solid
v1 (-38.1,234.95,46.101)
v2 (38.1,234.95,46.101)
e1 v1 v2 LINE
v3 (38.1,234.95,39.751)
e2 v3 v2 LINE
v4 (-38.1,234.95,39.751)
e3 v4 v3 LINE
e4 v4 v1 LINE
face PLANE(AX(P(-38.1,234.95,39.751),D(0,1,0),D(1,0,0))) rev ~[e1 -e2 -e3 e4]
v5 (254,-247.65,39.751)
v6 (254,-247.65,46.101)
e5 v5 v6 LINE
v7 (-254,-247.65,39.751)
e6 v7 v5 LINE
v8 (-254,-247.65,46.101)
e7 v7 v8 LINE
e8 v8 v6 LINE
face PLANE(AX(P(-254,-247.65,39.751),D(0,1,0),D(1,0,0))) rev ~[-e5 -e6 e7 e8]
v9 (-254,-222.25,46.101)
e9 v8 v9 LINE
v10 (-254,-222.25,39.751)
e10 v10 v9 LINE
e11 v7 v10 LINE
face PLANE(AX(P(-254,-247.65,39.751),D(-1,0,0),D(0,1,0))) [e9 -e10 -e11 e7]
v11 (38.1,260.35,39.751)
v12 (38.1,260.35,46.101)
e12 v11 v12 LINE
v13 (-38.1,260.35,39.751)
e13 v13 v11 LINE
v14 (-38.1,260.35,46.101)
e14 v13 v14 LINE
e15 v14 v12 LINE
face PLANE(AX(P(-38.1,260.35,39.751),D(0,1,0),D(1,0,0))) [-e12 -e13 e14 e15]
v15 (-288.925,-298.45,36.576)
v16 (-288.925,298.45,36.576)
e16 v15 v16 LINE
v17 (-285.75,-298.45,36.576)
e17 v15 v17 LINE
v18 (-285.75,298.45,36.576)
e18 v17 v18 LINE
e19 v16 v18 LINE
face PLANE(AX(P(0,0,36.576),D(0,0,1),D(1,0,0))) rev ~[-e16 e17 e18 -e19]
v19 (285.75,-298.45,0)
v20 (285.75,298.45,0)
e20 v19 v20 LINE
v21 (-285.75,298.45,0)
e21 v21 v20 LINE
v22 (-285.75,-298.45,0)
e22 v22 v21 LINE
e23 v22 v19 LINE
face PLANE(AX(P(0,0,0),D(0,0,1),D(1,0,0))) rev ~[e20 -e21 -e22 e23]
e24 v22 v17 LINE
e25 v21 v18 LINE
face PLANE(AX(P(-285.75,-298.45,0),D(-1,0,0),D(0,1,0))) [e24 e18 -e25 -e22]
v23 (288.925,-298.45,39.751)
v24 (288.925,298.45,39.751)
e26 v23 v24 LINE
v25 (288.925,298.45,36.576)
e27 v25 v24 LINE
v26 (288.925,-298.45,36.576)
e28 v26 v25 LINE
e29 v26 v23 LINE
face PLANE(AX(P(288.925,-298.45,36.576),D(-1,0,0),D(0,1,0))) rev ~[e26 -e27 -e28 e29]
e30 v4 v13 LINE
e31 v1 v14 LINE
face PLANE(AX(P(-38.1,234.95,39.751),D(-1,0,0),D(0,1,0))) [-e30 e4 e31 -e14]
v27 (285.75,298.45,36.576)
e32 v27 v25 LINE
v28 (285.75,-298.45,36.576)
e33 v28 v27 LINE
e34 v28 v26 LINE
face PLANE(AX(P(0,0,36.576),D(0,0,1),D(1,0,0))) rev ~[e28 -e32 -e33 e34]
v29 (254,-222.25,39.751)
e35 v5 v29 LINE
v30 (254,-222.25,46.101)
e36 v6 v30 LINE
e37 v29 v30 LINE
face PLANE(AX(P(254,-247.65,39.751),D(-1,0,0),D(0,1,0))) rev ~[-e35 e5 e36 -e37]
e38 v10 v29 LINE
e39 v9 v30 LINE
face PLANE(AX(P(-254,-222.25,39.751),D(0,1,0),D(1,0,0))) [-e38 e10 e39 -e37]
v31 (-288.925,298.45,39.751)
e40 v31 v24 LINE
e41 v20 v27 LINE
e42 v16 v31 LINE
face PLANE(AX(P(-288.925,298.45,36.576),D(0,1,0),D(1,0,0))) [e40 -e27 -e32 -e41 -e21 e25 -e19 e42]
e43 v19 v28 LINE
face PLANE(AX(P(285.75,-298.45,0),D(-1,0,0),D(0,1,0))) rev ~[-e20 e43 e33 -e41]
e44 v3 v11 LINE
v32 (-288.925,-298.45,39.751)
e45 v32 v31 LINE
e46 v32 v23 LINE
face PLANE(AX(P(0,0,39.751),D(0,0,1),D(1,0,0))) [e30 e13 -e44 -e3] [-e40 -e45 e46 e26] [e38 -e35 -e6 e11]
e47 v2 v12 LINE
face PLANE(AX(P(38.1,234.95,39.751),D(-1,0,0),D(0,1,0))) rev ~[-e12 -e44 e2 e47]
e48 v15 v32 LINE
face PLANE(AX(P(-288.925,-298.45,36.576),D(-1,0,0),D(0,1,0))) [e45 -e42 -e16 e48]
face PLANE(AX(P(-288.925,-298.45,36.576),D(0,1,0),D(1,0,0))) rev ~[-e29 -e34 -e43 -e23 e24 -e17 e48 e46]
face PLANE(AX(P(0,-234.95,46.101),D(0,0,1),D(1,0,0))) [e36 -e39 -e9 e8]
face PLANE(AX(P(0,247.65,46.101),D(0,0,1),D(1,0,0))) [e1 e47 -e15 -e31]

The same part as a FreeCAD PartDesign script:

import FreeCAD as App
import Part
import Sketcher
from FreeCAD import Vector
Q = App.Units.Quantity


def add_polygon(sketch, points):
    """Adds a closed chain of lines whose ends are joined by coincident constraints."""
    first, n = sketch.GeometryCount, len(points)
    for a, b in zip(points, points[1:] + points[:1]):
        sketch.addGeometry(Part.LineSegment(App.Vector(*a, 0), App.Vector(*b, 0)), False)
    for i in range(n):
        sketch.addConstraint(Sketcher.Constraint("Coincident", first + i, 2, first + (i + 1) % n, 1))

doc = App.newDocument("Part")
params = doc.addObject("Spreadsheet::Sheet", "Params")
for row, (alias, value) in enumerate([
    ("sketch1_width", "22.5 in"),
    ("sketch1_height", "23.5 in"),
    ("pad1_length", "1.44 in"),
    ("sketch2_height", "23.5 in"),
    ("sketch2_width", "22.75 in"),
    ("pad2_length", "0.125 in"),
    ("sketch3_width", "20 in"),
    ("sketch3_width2", "3 in"),
    ("sketch3_height", "1 in"),
    ("pad3_length", "0.25 in"),
], start=1):
    params.set(f"A{row}", alias)
    params.set(f"B{row}", "=" + value)
    params.setAlias(f"B{row}", alias)

body = doc.addObject("PartDesign::Body", "Body")

# Sketch on XY plane
sketch1 = body.newObject("Sketcher::SketchObject", "Sketch")
sketch1.AttachmentSupport = (doc.getObject("XY_Plane"), [""])
sketch1.MapMode = "FlatFace"
add_polygon(sketch1, [(-286, 298), (-286, -298), (286, -298), (286, 298)])  # lines 0-3
sketch1.addConstraint([
    Sketcher.Constraint("Vertical", 0),
    Sketcher.Constraint("Horizontal", 1),
    Sketcher.Constraint("Vertical", 2),
    Sketcher.Constraint("Horizontal", 3),
    Sketcher.Constraint("Symmetric", 0, 2, 2, 2, -1, 1),
    Sketcher.Constraint("DistanceX", 1, 1, 1, 2, Q("22.5 in")),
    Sketcher.Constraint("DistanceY", 0, 2, 0, 1, Q("23.5 in")),
])
sketch1.setExpression("Constraints[9]", "Params.sketch1_width")
sketch1.setExpression("Constraints[10]", "Params.sketch1_height")
pad1 = body.newObject("PartDesign::Pad", "Pad")
pad1.Profile = sketch1
pad1.setExpression("Length", "Params.pad1_length")

# Sketch on XY plane
sketch2 = body.newObject("Sketcher::SketchObject", "Sketch001")
sketch2.AttachmentSupport = (doc.getObject("XY_Plane"), [""])
sketch2.MapMode = "FlatFace"
sketch2.AttachmentOffset = App.Placement(Vector(0, 0, 1.44 * 25.4), App.Rotation())
add_polygon(sketch2, [(-289, 298), (-289, -298), (289, -298), (289, 298)])  # lines 0-3
sketch2.addConstraint([
    Sketcher.Constraint("Vertical", 0),
    Sketcher.Constraint("Horizontal", 1),
    Sketcher.Constraint("Vertical", 2),
    Sketcher.Constraint("Horizontal", 3),
    Sketcher.Constraint("Symmetric", 0, 2, 2, 2, -1, 1),
    Sketcher.Constraint("DistanceY", 0, 2, 0, 1, Q("23.5 in")),
    Sketcher.Constraint("DistanceX", 1, 1, 1, 2, Q("22.75 in")),
])
sketch2.setExpression("Constraints[9]", "Params.sketch2_height")
sketch2.setExpression("Constraints[10]", "Params.sketch2_width")
pad2 = body.newObject("PartDesign::Pad", "Pad001")
pad2.Profile = sketch2
pad2.setExpression("Length", "Params.pad2_length")

# Sketch on XY plane
sketch3 = body.newObject("Sketcher::SketchObject", "Sketch002")
sketch3.AttachmentSupport = (doc.getObject("XY_Plane"), [""])
sketch3.MapMode = "FlatFace"
sketch3.AttachmentOffset = App.Placement(Vector(0, 0, 1.565 * 25.4), App.Rotation())
add_polygon(sketch3, [(-254, -222), (-254, -248), (254, -248), (254, -222)])  # lines 0-3
add_polygon(sketch3, [(-38, 260), (-38, 235), (38, 235), (38, 260)])  # lines 4-7
sketch3.addConstraint([
    Sketcher.Constraint("Vertical", 0),
    Sketcher.Constraint("Horizontal", 1),
    Sketcher.Constraint("Vertical", 2),
    Sketcher.Constraint("Horizontal", 3),
    Sketcher.Constraint("Vertical", 4),
    Sketcher.Constraint("Horizontal", 5),
    Sketcher.Constraint("Vertical", 6),
    Sketcher.Constraint("Horizontal", 7),
    Sketcher.Constraint("Equal", 2, 4),
    Sketcher.Constraint("DistanceX", 1, 1, 1, 2, Q("20 in")),
    Sketcher.Constraint("DistanceX", 5, 1, 5, 2, Q("3 in")),
    Sketcher.Constraint("DistanceY", 0, 2, 0, 1, Q("1 in")),
    Sketcher.Constraint("DistanceX", 0, 2, -1, 1, Q("10 in")),
    Sketcher.Constraint("DistanceY", 3, 2, 4, 2, Q("18 in")),
    Sketcher.Constraint("DistanceX", 4, 2, -1, 1, Q("1.5 in")),
    Sketcher.Constraint("DistanceY", 0, 2, -1, 1, Q("9.75 in")),
])
sketch3.setExpression("Constraints[17]", "Params.sketch3_width")
sketch3.setExpression("Constraints[18]", "Params.sketch3_width2")
sketch3.setExpression("Constraints[19]", "Params.sketch3_height")
pad3 = body.newObject("PartDesign::Pad", "Pad002")
pad3.Profile = sketch3
pad3.setExpression("Length", "Params.pad3_length")

doc.recompute()
